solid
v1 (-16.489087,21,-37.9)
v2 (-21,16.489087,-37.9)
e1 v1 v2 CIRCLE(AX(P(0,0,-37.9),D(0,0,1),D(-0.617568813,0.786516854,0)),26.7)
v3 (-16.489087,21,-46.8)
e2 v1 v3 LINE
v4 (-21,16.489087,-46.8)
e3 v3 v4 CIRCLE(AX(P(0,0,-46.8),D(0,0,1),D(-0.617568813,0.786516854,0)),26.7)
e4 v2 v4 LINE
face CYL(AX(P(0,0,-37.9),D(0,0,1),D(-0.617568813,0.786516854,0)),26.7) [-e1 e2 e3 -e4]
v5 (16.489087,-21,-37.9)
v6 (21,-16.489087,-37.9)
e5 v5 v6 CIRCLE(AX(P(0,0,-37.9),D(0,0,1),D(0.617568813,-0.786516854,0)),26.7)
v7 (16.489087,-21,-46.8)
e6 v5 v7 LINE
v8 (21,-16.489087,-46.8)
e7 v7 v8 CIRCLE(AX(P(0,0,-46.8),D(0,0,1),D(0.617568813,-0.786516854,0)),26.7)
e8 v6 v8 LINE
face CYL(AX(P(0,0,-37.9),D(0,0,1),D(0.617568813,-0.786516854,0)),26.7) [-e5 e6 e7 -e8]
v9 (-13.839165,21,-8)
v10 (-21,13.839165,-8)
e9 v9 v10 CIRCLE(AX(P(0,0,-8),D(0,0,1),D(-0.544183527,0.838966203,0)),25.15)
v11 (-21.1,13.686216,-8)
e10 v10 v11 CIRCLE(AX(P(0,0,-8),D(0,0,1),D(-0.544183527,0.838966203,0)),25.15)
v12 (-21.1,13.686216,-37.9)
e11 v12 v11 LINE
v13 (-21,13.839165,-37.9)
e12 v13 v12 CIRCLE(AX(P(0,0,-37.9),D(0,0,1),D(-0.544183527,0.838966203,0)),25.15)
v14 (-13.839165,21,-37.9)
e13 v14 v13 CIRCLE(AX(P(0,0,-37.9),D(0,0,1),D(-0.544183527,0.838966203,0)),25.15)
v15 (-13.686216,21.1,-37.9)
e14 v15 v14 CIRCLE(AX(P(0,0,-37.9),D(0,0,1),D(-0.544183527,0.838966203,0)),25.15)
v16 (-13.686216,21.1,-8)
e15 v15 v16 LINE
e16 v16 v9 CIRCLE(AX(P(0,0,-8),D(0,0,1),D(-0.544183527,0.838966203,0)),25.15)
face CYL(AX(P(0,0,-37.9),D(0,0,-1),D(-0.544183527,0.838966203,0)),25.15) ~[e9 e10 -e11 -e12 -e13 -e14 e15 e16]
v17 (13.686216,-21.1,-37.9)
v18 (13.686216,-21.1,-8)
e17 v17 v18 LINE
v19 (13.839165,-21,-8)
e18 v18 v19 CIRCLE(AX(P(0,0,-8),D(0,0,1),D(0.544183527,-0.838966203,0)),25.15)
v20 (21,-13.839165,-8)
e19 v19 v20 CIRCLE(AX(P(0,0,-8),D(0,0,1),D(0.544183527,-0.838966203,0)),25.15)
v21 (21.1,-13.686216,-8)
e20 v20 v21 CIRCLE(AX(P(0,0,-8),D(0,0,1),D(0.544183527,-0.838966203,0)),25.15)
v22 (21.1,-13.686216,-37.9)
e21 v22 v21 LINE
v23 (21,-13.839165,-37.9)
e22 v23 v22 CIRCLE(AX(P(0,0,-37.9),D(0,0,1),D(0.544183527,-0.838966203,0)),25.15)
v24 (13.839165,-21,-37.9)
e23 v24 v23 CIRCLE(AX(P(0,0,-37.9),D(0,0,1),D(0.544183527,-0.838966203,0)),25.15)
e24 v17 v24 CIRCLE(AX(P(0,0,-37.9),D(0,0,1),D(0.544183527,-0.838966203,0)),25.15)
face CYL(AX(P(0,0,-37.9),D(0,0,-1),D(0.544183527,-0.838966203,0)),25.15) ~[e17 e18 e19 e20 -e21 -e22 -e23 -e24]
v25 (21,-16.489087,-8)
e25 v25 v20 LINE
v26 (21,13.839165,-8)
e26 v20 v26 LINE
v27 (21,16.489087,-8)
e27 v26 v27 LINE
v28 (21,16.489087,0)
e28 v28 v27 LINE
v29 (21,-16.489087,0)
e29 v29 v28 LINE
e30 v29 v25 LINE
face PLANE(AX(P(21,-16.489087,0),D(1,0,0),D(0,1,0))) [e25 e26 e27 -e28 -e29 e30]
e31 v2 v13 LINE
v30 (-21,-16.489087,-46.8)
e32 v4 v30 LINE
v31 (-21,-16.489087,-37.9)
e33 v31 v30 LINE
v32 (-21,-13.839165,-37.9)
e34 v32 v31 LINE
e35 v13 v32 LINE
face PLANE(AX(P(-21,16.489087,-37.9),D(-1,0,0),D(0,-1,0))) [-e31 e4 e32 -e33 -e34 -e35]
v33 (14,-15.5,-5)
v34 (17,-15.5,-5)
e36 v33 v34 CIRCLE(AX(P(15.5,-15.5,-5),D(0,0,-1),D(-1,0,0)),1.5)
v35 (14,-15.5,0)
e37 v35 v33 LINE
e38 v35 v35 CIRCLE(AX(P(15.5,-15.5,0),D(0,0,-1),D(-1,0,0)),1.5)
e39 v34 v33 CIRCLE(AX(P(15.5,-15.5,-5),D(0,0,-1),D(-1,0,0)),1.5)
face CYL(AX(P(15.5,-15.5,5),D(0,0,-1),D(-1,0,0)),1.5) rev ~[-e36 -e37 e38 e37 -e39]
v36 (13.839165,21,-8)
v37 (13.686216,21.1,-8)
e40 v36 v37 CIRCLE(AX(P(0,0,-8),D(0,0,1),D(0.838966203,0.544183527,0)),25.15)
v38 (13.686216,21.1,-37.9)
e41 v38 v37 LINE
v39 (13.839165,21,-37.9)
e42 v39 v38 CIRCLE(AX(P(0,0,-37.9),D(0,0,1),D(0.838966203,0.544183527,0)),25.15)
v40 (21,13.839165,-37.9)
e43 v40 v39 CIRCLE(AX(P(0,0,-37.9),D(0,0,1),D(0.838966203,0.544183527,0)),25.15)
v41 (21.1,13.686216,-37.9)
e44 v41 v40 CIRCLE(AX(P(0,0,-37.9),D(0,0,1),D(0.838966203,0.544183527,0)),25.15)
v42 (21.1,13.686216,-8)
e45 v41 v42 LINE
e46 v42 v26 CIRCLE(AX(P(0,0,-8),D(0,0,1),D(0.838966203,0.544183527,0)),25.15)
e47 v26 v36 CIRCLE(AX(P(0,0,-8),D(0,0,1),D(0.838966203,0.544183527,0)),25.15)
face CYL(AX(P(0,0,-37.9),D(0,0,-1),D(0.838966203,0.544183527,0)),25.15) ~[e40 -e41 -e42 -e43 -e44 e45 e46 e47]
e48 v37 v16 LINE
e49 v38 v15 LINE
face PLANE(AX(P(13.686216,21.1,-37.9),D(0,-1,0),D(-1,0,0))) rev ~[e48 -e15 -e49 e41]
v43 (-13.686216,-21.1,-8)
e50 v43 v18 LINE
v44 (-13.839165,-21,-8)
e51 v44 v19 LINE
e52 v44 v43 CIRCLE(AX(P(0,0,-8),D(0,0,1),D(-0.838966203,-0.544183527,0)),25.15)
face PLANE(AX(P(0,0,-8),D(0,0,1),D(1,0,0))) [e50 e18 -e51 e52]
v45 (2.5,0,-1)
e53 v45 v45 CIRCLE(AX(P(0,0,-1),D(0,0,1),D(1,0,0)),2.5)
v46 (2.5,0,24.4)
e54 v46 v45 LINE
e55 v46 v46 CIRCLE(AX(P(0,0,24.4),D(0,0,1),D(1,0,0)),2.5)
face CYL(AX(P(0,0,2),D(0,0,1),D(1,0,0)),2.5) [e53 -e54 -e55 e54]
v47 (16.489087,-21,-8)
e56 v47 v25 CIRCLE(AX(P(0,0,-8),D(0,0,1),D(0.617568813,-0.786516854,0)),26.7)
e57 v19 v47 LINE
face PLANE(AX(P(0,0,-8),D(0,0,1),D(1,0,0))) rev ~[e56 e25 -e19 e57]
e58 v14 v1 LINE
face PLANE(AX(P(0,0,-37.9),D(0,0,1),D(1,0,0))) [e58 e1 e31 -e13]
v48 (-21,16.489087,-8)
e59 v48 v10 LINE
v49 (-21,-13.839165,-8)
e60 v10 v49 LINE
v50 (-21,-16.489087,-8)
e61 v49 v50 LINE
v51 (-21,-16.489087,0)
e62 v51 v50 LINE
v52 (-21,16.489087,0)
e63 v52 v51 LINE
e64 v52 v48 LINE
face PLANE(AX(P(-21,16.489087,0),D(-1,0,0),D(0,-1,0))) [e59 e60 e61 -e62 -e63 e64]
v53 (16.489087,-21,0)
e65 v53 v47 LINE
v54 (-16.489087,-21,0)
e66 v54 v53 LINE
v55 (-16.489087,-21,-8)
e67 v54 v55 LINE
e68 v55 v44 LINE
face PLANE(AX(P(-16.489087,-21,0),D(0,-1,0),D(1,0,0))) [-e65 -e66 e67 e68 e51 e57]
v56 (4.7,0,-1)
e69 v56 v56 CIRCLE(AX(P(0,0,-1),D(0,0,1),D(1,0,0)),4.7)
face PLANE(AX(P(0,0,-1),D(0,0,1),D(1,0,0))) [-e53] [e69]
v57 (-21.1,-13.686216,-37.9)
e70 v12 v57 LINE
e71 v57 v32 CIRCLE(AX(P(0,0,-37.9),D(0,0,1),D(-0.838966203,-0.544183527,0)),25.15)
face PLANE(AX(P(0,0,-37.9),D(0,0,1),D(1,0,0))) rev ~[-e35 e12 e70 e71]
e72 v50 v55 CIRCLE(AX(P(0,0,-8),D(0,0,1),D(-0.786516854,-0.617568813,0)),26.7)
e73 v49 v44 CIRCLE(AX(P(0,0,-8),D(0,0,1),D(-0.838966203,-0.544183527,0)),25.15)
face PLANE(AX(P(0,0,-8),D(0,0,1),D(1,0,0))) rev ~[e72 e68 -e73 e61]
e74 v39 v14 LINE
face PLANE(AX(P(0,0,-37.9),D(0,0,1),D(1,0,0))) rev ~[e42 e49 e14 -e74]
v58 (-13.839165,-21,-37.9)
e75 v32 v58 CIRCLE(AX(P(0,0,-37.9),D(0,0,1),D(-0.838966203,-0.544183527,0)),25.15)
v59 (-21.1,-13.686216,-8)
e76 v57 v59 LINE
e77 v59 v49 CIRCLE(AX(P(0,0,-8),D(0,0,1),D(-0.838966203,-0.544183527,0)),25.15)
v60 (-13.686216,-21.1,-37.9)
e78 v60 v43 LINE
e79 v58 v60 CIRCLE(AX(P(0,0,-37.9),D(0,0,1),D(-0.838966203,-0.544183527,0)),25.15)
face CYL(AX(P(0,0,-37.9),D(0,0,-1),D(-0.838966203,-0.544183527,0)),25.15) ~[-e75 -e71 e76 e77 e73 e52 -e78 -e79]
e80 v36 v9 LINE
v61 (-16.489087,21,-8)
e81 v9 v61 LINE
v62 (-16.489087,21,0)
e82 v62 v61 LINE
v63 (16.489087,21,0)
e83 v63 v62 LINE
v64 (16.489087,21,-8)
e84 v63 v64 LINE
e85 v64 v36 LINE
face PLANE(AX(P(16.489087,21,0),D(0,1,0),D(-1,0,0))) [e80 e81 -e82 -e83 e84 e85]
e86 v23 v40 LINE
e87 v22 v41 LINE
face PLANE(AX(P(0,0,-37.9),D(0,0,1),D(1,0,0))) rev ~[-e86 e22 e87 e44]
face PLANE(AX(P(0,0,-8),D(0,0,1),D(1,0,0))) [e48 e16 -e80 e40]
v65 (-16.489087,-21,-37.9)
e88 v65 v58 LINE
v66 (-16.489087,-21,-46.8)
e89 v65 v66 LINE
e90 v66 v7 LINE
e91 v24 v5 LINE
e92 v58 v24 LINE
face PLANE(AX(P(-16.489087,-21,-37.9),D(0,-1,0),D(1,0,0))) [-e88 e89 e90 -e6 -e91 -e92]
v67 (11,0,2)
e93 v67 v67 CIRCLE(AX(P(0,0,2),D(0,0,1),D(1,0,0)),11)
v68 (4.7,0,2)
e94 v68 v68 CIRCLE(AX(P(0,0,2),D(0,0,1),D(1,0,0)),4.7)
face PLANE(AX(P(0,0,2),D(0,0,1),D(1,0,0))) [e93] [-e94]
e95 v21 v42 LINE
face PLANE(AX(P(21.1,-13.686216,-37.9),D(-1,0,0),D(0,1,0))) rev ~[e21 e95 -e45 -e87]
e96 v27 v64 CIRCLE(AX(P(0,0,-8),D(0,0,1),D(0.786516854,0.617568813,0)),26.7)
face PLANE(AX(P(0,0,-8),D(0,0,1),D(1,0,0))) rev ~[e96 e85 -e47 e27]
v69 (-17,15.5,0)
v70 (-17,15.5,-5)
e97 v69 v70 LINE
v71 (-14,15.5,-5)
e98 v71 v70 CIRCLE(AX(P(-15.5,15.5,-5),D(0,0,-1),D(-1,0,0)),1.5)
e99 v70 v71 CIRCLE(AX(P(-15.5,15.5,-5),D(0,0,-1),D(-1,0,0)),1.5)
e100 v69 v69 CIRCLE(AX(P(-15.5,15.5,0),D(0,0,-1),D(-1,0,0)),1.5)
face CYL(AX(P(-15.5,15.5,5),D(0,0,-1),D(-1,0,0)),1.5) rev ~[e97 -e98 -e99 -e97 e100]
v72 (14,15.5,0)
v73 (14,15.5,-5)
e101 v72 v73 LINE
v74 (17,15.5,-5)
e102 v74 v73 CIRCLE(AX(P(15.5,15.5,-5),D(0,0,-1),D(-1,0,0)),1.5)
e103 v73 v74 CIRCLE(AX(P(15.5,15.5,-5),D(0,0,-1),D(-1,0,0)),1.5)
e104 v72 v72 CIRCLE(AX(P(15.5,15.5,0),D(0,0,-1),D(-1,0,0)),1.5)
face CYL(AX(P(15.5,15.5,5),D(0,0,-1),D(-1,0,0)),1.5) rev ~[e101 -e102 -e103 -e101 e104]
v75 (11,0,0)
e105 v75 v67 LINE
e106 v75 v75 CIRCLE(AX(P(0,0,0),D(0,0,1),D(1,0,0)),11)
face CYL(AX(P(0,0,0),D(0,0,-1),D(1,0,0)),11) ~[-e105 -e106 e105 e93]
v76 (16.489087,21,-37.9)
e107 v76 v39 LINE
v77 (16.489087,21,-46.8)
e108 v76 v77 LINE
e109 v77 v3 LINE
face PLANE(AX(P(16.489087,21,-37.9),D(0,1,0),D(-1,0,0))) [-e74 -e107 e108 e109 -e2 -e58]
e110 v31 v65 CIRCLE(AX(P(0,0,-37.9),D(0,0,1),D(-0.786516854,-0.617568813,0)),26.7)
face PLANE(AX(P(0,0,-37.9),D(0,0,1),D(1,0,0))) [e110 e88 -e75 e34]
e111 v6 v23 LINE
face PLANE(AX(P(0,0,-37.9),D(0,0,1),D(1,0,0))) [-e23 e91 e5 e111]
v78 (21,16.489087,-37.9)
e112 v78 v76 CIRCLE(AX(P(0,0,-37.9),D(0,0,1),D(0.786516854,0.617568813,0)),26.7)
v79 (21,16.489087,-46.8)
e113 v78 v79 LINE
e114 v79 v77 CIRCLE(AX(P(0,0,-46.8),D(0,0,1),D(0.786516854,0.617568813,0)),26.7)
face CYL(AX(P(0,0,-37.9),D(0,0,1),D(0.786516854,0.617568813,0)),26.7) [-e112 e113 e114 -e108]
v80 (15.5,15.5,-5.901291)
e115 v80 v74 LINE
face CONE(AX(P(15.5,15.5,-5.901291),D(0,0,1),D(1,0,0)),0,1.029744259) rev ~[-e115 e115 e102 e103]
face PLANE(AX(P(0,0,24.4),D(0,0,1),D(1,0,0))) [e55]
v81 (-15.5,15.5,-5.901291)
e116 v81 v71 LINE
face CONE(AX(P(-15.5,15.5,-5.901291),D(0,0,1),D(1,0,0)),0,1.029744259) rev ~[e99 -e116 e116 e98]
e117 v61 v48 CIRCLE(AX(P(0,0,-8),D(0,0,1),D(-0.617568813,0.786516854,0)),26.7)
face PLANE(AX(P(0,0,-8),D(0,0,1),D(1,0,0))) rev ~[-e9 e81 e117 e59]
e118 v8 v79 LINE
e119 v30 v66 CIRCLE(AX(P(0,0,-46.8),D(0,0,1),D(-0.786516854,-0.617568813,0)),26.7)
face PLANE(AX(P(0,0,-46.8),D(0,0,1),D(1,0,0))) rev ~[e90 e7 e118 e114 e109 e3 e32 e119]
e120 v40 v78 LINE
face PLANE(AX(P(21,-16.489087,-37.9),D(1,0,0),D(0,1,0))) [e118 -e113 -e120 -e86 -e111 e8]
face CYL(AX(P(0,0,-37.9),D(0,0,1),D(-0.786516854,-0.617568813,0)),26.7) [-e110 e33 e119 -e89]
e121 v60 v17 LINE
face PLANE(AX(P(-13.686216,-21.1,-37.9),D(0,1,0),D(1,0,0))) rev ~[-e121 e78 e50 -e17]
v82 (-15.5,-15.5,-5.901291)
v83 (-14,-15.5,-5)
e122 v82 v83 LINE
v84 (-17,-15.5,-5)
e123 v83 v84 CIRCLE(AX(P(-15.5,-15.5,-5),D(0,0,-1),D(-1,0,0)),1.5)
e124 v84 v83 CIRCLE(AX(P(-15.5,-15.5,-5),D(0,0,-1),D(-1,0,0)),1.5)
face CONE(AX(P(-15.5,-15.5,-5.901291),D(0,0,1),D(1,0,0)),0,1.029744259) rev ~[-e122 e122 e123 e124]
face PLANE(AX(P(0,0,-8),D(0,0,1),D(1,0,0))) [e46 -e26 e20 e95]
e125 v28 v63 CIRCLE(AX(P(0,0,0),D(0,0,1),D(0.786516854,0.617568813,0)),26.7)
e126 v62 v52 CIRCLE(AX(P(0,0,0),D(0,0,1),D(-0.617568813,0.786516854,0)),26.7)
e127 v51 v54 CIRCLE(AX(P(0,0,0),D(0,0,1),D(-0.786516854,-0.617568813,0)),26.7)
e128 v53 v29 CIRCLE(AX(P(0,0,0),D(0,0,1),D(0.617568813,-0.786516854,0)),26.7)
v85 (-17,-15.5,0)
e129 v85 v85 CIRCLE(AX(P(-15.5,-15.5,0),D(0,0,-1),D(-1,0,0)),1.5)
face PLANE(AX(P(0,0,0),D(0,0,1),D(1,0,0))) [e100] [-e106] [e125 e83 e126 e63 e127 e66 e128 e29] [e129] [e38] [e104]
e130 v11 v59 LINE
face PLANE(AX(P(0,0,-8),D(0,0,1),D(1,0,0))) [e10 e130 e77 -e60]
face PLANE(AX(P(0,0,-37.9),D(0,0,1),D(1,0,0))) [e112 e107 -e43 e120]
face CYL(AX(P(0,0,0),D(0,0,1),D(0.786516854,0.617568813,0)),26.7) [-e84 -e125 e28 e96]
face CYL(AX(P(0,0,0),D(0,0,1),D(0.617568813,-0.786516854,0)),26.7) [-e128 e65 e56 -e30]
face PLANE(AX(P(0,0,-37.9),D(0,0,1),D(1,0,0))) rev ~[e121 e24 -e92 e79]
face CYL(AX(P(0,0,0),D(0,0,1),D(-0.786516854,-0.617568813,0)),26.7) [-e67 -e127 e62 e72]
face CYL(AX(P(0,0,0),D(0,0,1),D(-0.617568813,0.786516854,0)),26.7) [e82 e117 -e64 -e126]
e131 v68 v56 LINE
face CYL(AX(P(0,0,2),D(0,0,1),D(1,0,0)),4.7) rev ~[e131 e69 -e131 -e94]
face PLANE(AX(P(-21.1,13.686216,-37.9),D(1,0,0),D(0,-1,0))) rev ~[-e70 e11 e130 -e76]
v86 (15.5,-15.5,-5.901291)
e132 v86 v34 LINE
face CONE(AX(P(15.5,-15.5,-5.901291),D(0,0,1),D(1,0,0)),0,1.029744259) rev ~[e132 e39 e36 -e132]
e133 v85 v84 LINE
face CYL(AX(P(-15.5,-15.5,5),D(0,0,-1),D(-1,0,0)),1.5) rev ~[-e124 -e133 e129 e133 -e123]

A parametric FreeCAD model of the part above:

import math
import FreeCAD as App
import Part
import Sketcher

V = App.Vector

doc = App.newDocument("Part")
body = doc.addObject("PartDesign::Body", "Body")

# Sketch on XY plane
sketch1 = body.newObject("Sketcher::SketchObject", "Sketch")
sketch1.AttachmentSupport = (doc.getObject("XY_Plane"), [""])
sketch1.MapMode = "FlatFace"
sketch1.addGeometry([
    Part.ArcOfCircle(Part.Circle(V(0, 0, 0), V(0, 0, 1), 26.7), math.radians(38.138813), math.radians(51.861187)),  # 0
    Part.LineSegment(V(16.489087, 21, 0), V(-16.489087, 21, 0)),  # 1
    Part.ArcOfCircle(Part.Circle(V(0, 0, 0), V(0, 0, 1), 26.7), math.radians(128.138813), math.radians(141.861187)),  # 2
    Part.LineSegment(V(-21, 16.489087, 0), V(-21, -16.489087, 0)),  # 3
    Part.ArcOfCircle(Part.Circle(V(0, 0, 0), V(0, 0, 1), 26.7), math.radians(-141.861187), math.radians(-128.138813)),  # 4
    Part.LineSegment(V(-16.489087, -21, 0), V(16.489087, -21, 0)),  # 5
    Part.ArcOfCircle(Part.Circle(V(0, 0, 0), V(0, 0, 1), 26.7), math.radians(-51.861187), math.radians(-38.138813)),  # 6
    Part.LineSegment(V(21, -16.489087, 0), V(21, 16.489087, 0)),  # 7
], False)
sketch1.addConstraint([
    Sketcher.Constraint("Coincident", 0, 2, 1, 1),
    Sketcher.Constraint("Coincident", 1, 2, 2, 1),
    Sketcher.Constraint("Coincident", 2, 2, 3, 1),
    Sketcher.Constraint("Coincident", 3, 2, 4, 1),
    Sketcher.Constraint("Coincident", 4, 2, 5, 1),
    Sketcher.Constraint("Coincident", 5, 2, 6, 1),
    Sketcher.Constraint("Coincident", 6, 2, 7, 1),
    Sketcher.Constraint("Coincident", 7, 2, 0, 1),
    Sketcher.Constraint("Horizontal", 1),
    Sketcher.Constraint("Vertical", 3),
    Sketcher.Constraint("Horizontal", 5),
    Sketcher.Constraint("Vertical", 7),
    Sketcher.Constraint("Coincident", 0, 3, -1, 1),
    Sketcher.Constraint("Coincident", 2, 3, -1, 1),
    Sketcher.Constraint("Coincident", 4, 3, -1, 1),
    Sketcher.Constraint("Coincident", 6, 3, -1, 1),
    Sketcher.Constraint("Equal", 0, 2),
    Sketcher.Constraint("Equal", 2, 4),
    Sketcher.Constraint("Equal", 4, 6),
    Sketcher.Constraint("Horizontal", 3, 2, 6, 2),
    Sketcher.Constraint("Vertical", 1, 2, 4, 2),
    Sketcher.Constraint("Equal", 5, 3),
    Sketcher.Constraint("Radius", 0, 26.7),
    Sketcher.Constraint("DistanceY", -1, 1, 0, 2, 21.0),
])
pad1 = body.newObject("PartDesign::Pad", "Pad")
pad1.Profile = sketch1
pad1.Length = 8
pad1.Reversed = True

# Sketch on XY plane
sketch2 = body.newObject("Sketcher::SketchObject", "Sketch001")
sketch2.AttachmentSupport = (doc.getObject("XY_Plane"), [""])
sketch2.MapMode = "FlatFace"
sketch2.AttachmentOffset = App.Placement(V(0, 0, -37.9), App.Rotation())
sketch2.addGeometry([
    Part.ArcOfCircle(Part.Circle(V(0, 0, 0), V(0, 0, 1), 25.15), math.radians(-147.031114), math.radians(-122.968886)),  # 0
    Part.LineSegment(V(-13.686216, -21.1, 0), V(13.686216, -21.1, 0)),  # 1
    Part.ArcOfCircle(Part.Circle(V(0, 0, 0), V(0, 0, 1), 25.15), math.radians(-57.031114), math.radians(-32.968886)),  # 2
    Part.LineSegment(V(21.1, -13.686216, 0), V(21.1, 13.686216, 0)),  # 3
    Part.ArcOfCircle(Part.Circle(V(0, 0, 0), V(0, 0, 1), 25.15), math.radians(32.968886), math.radians(57.031114)),  # 4
    Part.LineSegment(V(13.686216, 21.1, 0), V(-13.686216, 21.1, 0)),  # 5
    Part.ArcOfCircle(Part.Circle(V(0, 0, 0), V(0, 0, 1), 25.15), math.radians(122.968886), math.radians(147.031114)),  # 6
    Part.LineSegment(V(-21.1, 13.686216, 0), V(-21.1, -13.686216, 0)),  # 7
], False)
sketch2.addConstraint([
    Sketcher.Constraint("Coincident", 0, 2, 1, 1),
    Sketcher.Constraint("Coincident", 1, 2, 2, 1),
    Sketcher.Constraint("Coincident", 2, 2, 3, 1),
    Sketcher.Constraint("Coincident", 3, 2, 4, 1),
    Sketcher.Constraint("Coincident", 4, 2, 5, 1),
    Sketcher.Constraint("Coincident", 5, 2, 6, 1),
    Sketcher.Constraint("Coincident", 6, 2, 7, 1),
    Sketcher.Constraint("Coincident", 7, 2, 0, 1),
    Sketcher.Constraint("Horizontal", 1),
    Sketcher.Constraint("Vertical", 3),
    Sketcher.Constraint("Horizontal", 5),
    Sketcher.Constraint("Vertical", 7),
    Sketcher.Constraint("Coincident", 0, 3, -1, 1),
    Sketcher.Constraint("Coincident", 2, 3, -1, 1),
    Sketcher.Constraint("Coincident", 4, 3, -1, 1),
    Sketcher.Constraint("Coincident", 6, 3, -1, 1),
    Sketcher.Constraint("Equal", 0, 2),
    Sketcher.Constraint("Equal", 2, 4),
    Sketcher.Constraint("Equal", 4, 6),
    Sketcher.Constraint("Horizontal", 3, 2, 6, 2),
    Sketcher.Constraint("Vertical", 1, 2, 4, 2),
    Sketcher.Constraint("Equal", 5, 3),
    Sketcher.Constraint("Radius", 0, 25.15),
    Sketcher.Constraint("DistanceY", 0, 2, -1, 1, 21.1),
])
pad2 = body.newObject("PartDesign::Pad", "Pad001")
pad2.Profile = sketch2
pad2.Length = 29.9

# Sketch on XY plane
sketch3 = body.newObject("Sketcher::SketchObject", "Sketch002")
sketch3.AttachmentSupport = (doc.getObject("XY_Plane"), [""])
sketch3.MapMode = "FlatFace"
sketch3.AttachmentOffset = App.Placement(V(0, 0, -37.9), App.Rotation())
sketch3.addGeometry([
    Part.ArcOfCircle(Part.Circle(V(0, 0, 0), V(0, 0, 1), 26.7), math.radians(38.138813), math.radians(51.861187)),  # 0
    Part.LineSegment(V(16.489087, 21, 0), V(-16.489087, 21, 0)),  # 1
    Part.ArcOfCircle(Part.Circle(V(0, 0, 0), V(0, 0, 1), 26.7), math.radians(128.138813), math.radians(141.861187)),  # 2
    Part.LineSegment(V(-21, 16.489087, 0), V(-21, -16.489087, 0)),  # 3
    Part.ArcOfCircle(Part.Circle(V(0, 0, 0), V(0, 0, 1), 26.7), math.radians(-141.861187), math.radians(-128.138813)),  # 4
    Part.LineSegment(V(-16.489087, -21, 0), V(16.489087, -21, 0)),  # 5
    Part.ArcOfCircle(Part.Circle(V(0, 0, 0), V(0, 0, 1), 26.7), math.radians(-51.861187), math.radians(-38.138813)),  # 6
    Part.LineSegment(V(21, -16.489087, 0), V(21, 16.489087, 0)),  # 7
], False)
sketch3.addConstraint([
    Sketcher.Constraint("Coincident", 0, 2, 1, 1),
    Sketcher.Constraint("Coincident", 1, 2, 2, 1),
    Sketcher.Constraint("Coincident", 2, 2, 3, 1),
    Sketcher.Constraint("Coincident", 3, 2, 4, 1),
    Sketcher.Constraint("Coincident", 4, 2, 5, 1),
    Sketcher.Constraint("Coincident", 5, 2, 6, 1),
    Sketcher.Constraint("Coincident", 6, 2, 7, 1),
    Sketcher.Constraint("Coincident", 7, 2, 0, 1),
    Sketcher.Constraint("Horizontal", 1),
    Sketcher.Constraint("Vertical", 3),
    Sketcher.Constraint("Horizontal", 5),
    Sketcher.Constraint("Vertical", 7),
    Sketcher.Constraint("Coincident", 0, 3, -1, 1),
    Sketcher.Constraint("Coincident", 2, 3, -1, 1),
    Sketcher.Constraint("Coincident", 4, 3, -1, 1),
    Sketcher.Constraint("Coincident", 6, 3, -1, 1),
    Sketcher.Constraint("Equal", 0, 2),
    Sketcher.Constraint("Equal", 2, 4),
    Sketcher.Constraint("Equal", 4, 6),
    Sketcher.Constraint("Horizontal", 3, 2, 6, 2),
    Sketcher.Constraint("Vertical", 1, 2, 4, 2),
    Sketcher.Constraint("Equal", 5, 3),
    Sketcher.Constraint("Radius", 0, 26.7),
    Sketcher.Constraint("DistanceY", -1, 1, 0, 2, 21.0),
])
pad3 = body.newObject("PartDesign::Pad", "Pad002")
pad3.Profile = sketch3
pad3.Length = 8.9
pad3.Reversed = True

# Sketch on XY plane
sketch4 = body.newObject("Sketcher::SketchObject", "Sketch003")
sketch4.AttachmentSupport = (doc.getObject("XY_Plane"), [""])
sketch4.MapMode = "FlatFace"
sketch4.addGeometry([
    Part.Circle(V(0, 0, 0), V(0, 0, 1), 11),
    Part.Circle(V(0, 0, 0), V(0, 0, 1), 4.7),
], False)
sketch4.addConstraint([
    Sketcher.Constraint("Coincident", 0, 3, -1, 1),
    Sketcher.Constraint("Coincident", 1, 3, -1, 1),
    Sketcher.Constraint("Diameter", 0, 22.0),
    Sketcher.Constraint("Diameter", 1, 9.4),
])
pad4 = body.newObject("PartDesign::Pad", "Pad003")
pad4.Profile = sketch4
pad4.Length = 2

# Sketch on XY plane
sketch5 = body.newObject("Sketcher::SketchObject", "Sketch004")
sketch5.AttachmentSupport = (doc.getObject("XY_Plane"), [""])
sketch5.MapMode = "FlatFace"
sketch5.AttachmentOffset = App.Placement(V(0, 0, 2), App.Rotation())
sketch5.addGeometry(Part.Circle(V(0, 0, 0), V(0, 0, 1), 2.5), False)
sketch5.addConstraint([
    Sketcher.Constraint("Coincident", 0, 3, -1, 1),
    Sketcher.Constraint("Diameter", 0, 5.0),
])
pad5 = body.newObject("PartDesign::Pad", "Pad004")
pad5.Profile = sketch5
pad5.Type = "TwoLengths"
pad5.Length = 22.4
pad5.Length2 = 10

# Sketch on XY plane
sketch6 = body.newObject("Sketcher::SketchObject", "Sketch005")
sketch6.AttachmentSupport = (doc.getObject("XY_Plane"), [""])
sketch6.MapMode = "FlatFace"
sketch6.AttachmentOffset = App.Placement(V(0, 0, 2), App.Rotation())
sketch6.addGeometry([
    Part.Circle(V(0, 0, 0), V(0, 0, 1), 4.7),
    Part.Circle(V(0, 0, 0), V(0, 0, 1), 2.5),
], False)
sketch6.addConstraint([
    Sketcher.Constraint("Coincident", 0, 3, -1, 1),
    Sketcher.Constraint("Coincident", 1, 3, -1, 1),
    Sketcher.Constraint("Diameter", 1, 5.0),
    Sketcher.Constraint("Diameter", 0, 9.4),
])
pocket1 = body.newObject("PartDesign::Pocket", "Pocket")
pocket1.Profile = sketch6
pocket1.Length = 3

# Sketch on XY plane
sketch7 = body.newObject("Sketcher::SketchObject", "Sketch006")
sketch7.AttachmentSupport = (doc.getObject("XY_Plane"), [""])
sketch7.MapMode = "FlatFace"
sketch7.addGeometry([
    Part.Circle(V(-15.5, 15.5, 0), V(0, 0, 1), 1.5),
    Part.Circle(V(15.5, 15.5, 0), V(0, 0, 1), 1.5),
    Part.Circle(V(15.5, -15.5, 0), V(0, 0, 1), 1.5),
    Part.Circle(V(-15.5, -15.5, 0), V(0, 0, 1), 1.5),
], False)
sketch7.addConstraint([
    Sketcher.Constraint("Equal", 0, 1),
    Sketcher.Constraint("Equal", 1, 2),
    Sketcher.Constraint("Equal", 2, 3),
    Sketcher.Constraint("Symmetric", 0, 3, 2, 3, -1, 1),
    Sketcher.Constraint("Symmetric", 1, 3, 3, 3, -1, 1),
    Sketcher.Constraint("Symmetric", 0, 3, 1, 3, -2),
    Sketcher.Constraint("Diameter", 0, 3.0),
    Sketcher.Constraint("DistanceX", 0, 3, 1, 3, 31.0),
    Sketcher.Constraint("DistanceY", 2, 3, 1, 3, 31.0),
])
doc.recompute()
hole = body.newObject("PartDesign::Hole", "Hole")
hole.Profile = sketch7
hole.ThreadType = "None"
hole.Diameter = 3
hole.DepthType = "Dimension"
hole.Depth = 5
hole.DrillPoint = "Angled"
hole.DrillPointAngle = 118

doc.recompute()
